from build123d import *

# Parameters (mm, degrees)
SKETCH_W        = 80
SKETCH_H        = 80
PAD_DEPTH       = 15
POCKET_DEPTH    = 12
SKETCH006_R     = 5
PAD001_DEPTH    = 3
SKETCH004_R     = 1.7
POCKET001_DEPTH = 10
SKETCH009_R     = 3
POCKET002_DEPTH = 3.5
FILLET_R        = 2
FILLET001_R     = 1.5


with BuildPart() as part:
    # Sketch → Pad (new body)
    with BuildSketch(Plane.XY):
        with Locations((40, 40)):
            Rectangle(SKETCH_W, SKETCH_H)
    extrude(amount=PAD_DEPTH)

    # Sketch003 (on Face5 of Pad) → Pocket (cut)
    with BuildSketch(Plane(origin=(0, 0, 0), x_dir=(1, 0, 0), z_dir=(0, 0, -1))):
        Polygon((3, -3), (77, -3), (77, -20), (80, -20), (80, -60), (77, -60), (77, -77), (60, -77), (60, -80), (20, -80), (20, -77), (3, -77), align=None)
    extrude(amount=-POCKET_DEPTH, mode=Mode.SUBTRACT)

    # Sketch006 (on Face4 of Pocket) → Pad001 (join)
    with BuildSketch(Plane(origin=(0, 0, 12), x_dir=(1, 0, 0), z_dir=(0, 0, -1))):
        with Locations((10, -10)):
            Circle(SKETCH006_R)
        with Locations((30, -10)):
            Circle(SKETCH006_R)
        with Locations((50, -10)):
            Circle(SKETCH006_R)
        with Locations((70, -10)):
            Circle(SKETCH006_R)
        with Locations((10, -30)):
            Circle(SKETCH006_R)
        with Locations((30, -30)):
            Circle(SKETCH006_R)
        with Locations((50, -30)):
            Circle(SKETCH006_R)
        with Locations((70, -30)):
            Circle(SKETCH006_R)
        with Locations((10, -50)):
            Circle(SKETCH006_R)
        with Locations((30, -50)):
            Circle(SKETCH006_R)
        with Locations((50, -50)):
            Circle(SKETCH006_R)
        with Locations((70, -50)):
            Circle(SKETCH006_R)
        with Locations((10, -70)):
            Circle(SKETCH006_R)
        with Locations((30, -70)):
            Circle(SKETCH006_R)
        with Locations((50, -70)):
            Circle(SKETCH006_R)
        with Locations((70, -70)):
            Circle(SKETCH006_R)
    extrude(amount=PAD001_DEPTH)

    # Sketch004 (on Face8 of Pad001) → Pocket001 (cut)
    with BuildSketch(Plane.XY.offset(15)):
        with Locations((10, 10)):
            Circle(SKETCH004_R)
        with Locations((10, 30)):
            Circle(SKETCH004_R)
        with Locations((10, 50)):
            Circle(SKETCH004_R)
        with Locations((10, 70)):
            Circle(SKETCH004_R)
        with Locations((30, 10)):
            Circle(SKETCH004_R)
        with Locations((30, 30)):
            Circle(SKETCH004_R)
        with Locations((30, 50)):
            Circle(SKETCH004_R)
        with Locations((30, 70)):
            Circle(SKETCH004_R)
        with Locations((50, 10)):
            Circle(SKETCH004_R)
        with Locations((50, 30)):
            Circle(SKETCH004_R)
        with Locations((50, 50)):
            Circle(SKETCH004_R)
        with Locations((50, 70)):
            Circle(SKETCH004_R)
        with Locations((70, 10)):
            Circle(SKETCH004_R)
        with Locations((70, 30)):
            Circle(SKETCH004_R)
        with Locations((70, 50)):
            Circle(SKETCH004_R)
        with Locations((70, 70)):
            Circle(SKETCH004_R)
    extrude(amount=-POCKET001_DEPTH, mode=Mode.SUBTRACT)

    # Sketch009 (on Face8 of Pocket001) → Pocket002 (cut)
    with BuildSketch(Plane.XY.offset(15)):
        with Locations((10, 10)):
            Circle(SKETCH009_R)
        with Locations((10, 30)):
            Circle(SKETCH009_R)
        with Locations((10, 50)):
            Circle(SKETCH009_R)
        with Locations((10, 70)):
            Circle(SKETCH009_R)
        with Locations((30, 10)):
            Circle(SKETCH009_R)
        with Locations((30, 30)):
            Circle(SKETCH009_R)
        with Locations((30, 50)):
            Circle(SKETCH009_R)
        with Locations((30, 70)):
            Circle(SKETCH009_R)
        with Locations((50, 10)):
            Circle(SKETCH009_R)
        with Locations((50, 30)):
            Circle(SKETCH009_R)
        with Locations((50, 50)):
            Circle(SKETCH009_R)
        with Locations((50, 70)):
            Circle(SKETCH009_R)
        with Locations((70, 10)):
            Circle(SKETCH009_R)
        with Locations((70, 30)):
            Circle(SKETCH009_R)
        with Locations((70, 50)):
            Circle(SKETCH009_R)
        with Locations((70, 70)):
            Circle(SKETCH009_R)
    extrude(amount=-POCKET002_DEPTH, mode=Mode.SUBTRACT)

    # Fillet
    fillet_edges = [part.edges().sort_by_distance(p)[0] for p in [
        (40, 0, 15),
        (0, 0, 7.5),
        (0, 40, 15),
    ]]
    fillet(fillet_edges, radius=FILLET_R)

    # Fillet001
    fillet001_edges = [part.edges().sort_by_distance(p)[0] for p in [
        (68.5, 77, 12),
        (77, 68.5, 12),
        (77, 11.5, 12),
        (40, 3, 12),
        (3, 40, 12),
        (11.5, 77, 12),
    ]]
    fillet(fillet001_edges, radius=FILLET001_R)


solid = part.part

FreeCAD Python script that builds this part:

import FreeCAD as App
import Part
import Sketcher
Q = App.Units.Quantity


def edges_at(feature, points):
    """Names of the edges that pass closest to the given points."""
    edges = feature.Shape.Edges
    near = lambda p: min(range(len(edges)), key=lambda i: edges[i].distToShape(Part.Vertex(*p))[0])
    return sorted({f"Edge{near(p) + 1}" for p in points})

doc = App.newDocument("Part")
body = doc.addObject("PartDesign::Body", "Body")

sketch1 = doc.addObject("Sketcher::SketchObject", "Sketch")
body.addObject(sketch1)
sketch1.AttachmentSupport = (doc.XY_Plane, [""])
sketch1.MapMode = "FlatFace"
sketch1.addGeometry(Part.LineSegment(App.Vector(0, 80, 0), App.Vector(0, 0, 0)), False)
sketch1.addGeometry(Part.LineSegment(App.Vector(0, 0, 0), App.Vector(80, 0, 0)), False)
sketch1.addGeometry(Part.LineSegment(App.Vector(80, 0, 0), App.Vector(80, 80, 0)), False)
sketch1.addGeometry(Part.LineSegment(App.Vector(80, 80, 0), App.Vector(0, 80, 0)), False)
sketch1.addConstraint(Sketcher.Constraint("Coincident", 0, 2, 1, 1))
sketch1.addConstraint(Sketcher.Constraint("Coincident", 1, 2, 2, 1))
sketch1.addConstraint(Sketcher.Constraint("Coincident", 2, 2, 3, 1))
sketch1.addConstraint(Sketcher.Constraint("Coincident", 3, 2, 0, 1))
sketch1.addConstraint(Sketcher.Constraint("Vertical", 0))
sketch1.addConstraint(Sketcher.Constraint("Horizontal", 1))
sketch1.addConstraint(Sketcher.Constraint("Vertical", 2))
sketch1.addConstraint(Sketcher.Constraint("Horizontal", 3))
sketch1.addConstraint(Sketcher.Constraint("Coincident", 0, 2, -1, 1))
sketch1.addConstraint(Sketcher.Constraint("Equal", 3, 0))
sketch1.addConstraint(Sketcher.Constraint("DistanceX", 1, 1, 1, 2, Q("80 mm")))
pad1 = doc.addObject("PartDesign::Pad", "Pad")
body.addObject(pad1)
pad1.Profile = sketch1
pad1.Length = 15

sketch2 = doc.addObject("Sketcher::SketchObject", "Sketch001")
body.addObject(sketch2)
sketch2.AttachmentSupport = (doc.XY_Plane, [""])
sketch2.MapMode = "FlatFace"
sketch2.addGeometry(Part.LineSegment(App.Vector(77, 3, 0), App.Vector(3, 3, 0)), False)
sketch2.addGeometry(Part.LineSegment(App.Vector(3, 3, 0), App.Vector(3, 77, 0)), False)
sketch2.addGeometry(Part.LineSegment(App.Vector(3, 77, 0), App.Vector(20, 77, 0)), False)
sketch2.addGeometry(Part.LineSegment(App.Vector(20, 77, 0), App.Vector(20, 80, 0)), False)
sketch2.addGeometry(Part.LineSegment(App.Vector(20, 80, 0), App.Vector(60, 80, 0)), False)
sketch2.addGeometry(Part.LineSegment(App.Vector(60, 80, 0), App.Vector(60, 77, 0)), False)
sketch2.addGeometry(Part.LineSegment(App.Vector(60, 77, 0), App.Vector(77, 77, 0)), False)
sketch2.addGeometry(Part.LineSegment(App.Vector(77, 77, 0), App.Vector(77, 60, 0)), False)
sketch2.addGeometry(Part.LineSegment(App.Vector(77, 60, 0), App.Vector(80, 60, 0)), False)
sketch2.addGeometry(Part.LineSegment(App.Vector(80, 60, 0), App.Vector(80, 20, 0)), False)
sketch2.addGeometry(Part.LineSegment(App.Vector(80, 20, 0), App.Vector(77, 20, 0)), False)
sketch2.addGeometry(Part.LineSegment(App.Vector(77, 20, 0), App.Vector(77, 3, 0)), False)
sketch2.addConstraint(Sketcher.Constraint("Coincident", 0, 2, 1, 1))
sketch2.addConstraint(Sketcher.Constraint("Coincident", 1, 2, 2, 1))
sketch2.addConstraint(Sketcher.Constraint("Coincident", 2, 2, 3, 1))
sketch2.addConstraint(Sketcher.Constraint("Coincident", 3, 2, 4, 1))
sketch2.addConstraint(Sketcher.Constraint("Coincident", 4, 2, 5, 1))
sketch2.addConstraint(Sketcher.Constraint("Coincident", 5, 2, 6, 1))
sketch2.addConstraint(Sketcher.Constraint("Coincident", 6, 2, 7, 1))
sketch2.addConstraint(Sketcher.Constraint("Coincident", 7, 2, 8, 1))
sketch2.addConstraint(Sketcher.Constraint("Coincident", 8, 2, 9, 1))
sketch2.addConstraint(Sketcher.Constraint("Coincident", 9, 2, 10, 1))
sketch2.addConstraint(Sketcher.Constraint("Coincident", 10, 2, 11, 1))
sketch2.addConstraint(Sketcher.Constraint("Coincident", 11, 2, 0, 1))
sketch2.addConstraint(Sketcher.Constraint("Horizontal", 0))
sketch2.addConstraint(Sketcher.Constraint("Vertical", 1))
sketch2.addConstraint(Sketcher.Constraint("Horizontal", 2))
sketch2.addConstraint(Sketcher.Constraint("Vertical", 3))
sketch2.addConstraint(Sketcher.Constraint("Horizontal", 4))
sketch2.addConstraint(Sketcher.Constraint("Vertical", 5))
sketch2.addConstraint(Sketcher.Constraint("Horizontal", 6))
sketch2.addConstraint(Sketcher.Constraint("Vertical", 7))
sketch2.addConstraint(Sketcher.Constraint("Horizontal", 8))
sketch2.addConstraint(Sketcher.Constraint("Vertical", 9))
sketch2.addConstraint(Sketcher.Constraint("Horizontal", 10))
sketch2.addConstraint(Sketcher.Constraint("Vertical", 11))
sketch2.addConstraint(Sketcher.Constraint("Horizontal", 2, 2, 5, 2))
sketch2.addConstraint(Sketcher.Constraint("Vertical", 7, 2, 10, 2))
sketch2.addConstraint(Sketcher.Constraint("Equal", 2, 6))
sketch2.addConstraint(Sketcher.Constraint("Equal", 0, 1))
sketch2.addConstraint(Sketcher.Constraint("Equal", 10, 3))
sketch2.addConstraint(Sketcher.Constraint("Equal", 6, 7))
sketch2.addConstraint(Sketcher.Constraint("Equal", 4, 9))
sketch2.addConstraint(Sketcher.Constraint("DistanceX", 0, 2, 0, 1, Q("74 mm")))
sketch2.addConstraint(Sketcher.Constraint("DistanceX", 2, 1, 2, 2, Q("17 mm")))
sketch2.addConstraint(Sketcher.Constraint("DistanceX", 8, 1, 8, 2, Q("3 mm")))
sketch2.addConstraint(Sketcher.Constraint("DistanceX", -1, 1, 0, 2, Q("3 mm")))
sketch2.addConstraint(Sketcher.Constraint("DistanceY", -1, 1, 0, 2, Q("3 mm")))
pocket1 = doc.addObject("PartDesign::Pocket", "Pocket")
body.addObject(pocket1)
pocket1.Profile = sketch2
pocket1.Length = 12
pocket1.Reversed = True

sketch3 = doc.addObject("Sketcher::SketchObject", "Sketch002")
body.addObject(sketch3)
sketch3.AttachmentSupport = (doc.XY_Plane, [""])
sketch3.MapMode = "FlatFace"
sketch3.AttachmentOffset = App.Placement(App.Vector(0, 0, 12), App.Rotation())
sketch3.addGeometry(Part.Circle(App.Vector(10, 10, 0), App.Vector(0, 0, 1), 5), False)
sketch3.addGeometry(Part.Circle(App.Vector(30, 10, 0), App.Vector(0, 0, 1), 5), False)
sketch3.addGeometry(Part.Circle(App.Vector(50, 10, 0), App.Vector(0, 0, 1), 5), False)
sketch3.addGeometry(Part.Circle(App.Vector(70, 10, 0), App.Vector(0, 0, 1), 5), False)
sketch3.addGeometry(Part.Circle(App.Vector(10, 30, 0), App.Vector(0, 0, 1), 5), False)
sketch3.addGeometry(Part.Circle(App.Vector(30, 30, 0), App.Vector(0, 0, 1), 5), False)
sketch3.addGeometry(Part.Circle(App.Vector(50, 30, 0), App.Vector(0, 0, 1), 5), False)
sketch3.addGeometry(Part.Circle(App.Vector(70, 30, 0), App.Vector(0, 0, 1), 5), False)
sketch3.addGeometry(Part.Circle(App.Vector(10, 50, 0), App.Vector(0, 0, 1), 5), False)
sketch3.addGeometry(Part.Circle(App.Vector(30, 50, 0), App.Vector(0, 0, 1), 5), False)
sketch3.addGeometry(Part.Circle(App.Vector(50, 50, 0), App.Vector(0, 0, 1), 5), False)
sketch3.addGeometry(Part.Circle(App.Vector(70, 50, 0), App.Vector(0, 0, 1), 5), False)
sketch3.addGeometry(Part.Circle(App.Vector(10, 70, 0), App.Vector(0, 0, 1), 5), False)
sketch3.addGeometry(Part.Circle(App.Vector(30, 70, 0), App.Vector(0, 0, 1), 5), False)
sketch3.addGeometry(Part.Circle(App.Vector(50, 70, 0), App.Vector(0, 0, 1), 5), False)
sketch3.addGeometry(Part.Circle(App.Vector(70, 70, 0), App.Vector(0, 0, 1), 5), False)
sketch3.addConstraint(Sketcher.Constraint("Equal", 0, 1))
sketch3.addConstraint(Sketcher.Constraint("Equal", 1, 2))
sketch3.addConstraint(Sketcher.Constraint("Equal", 2, 3))
sketch3.addConstraint(Sketcher.Constraint("Equal", 3, 4))
sketch3.addConstraint(Sketcher.Constraint("Equal", 4, 5))
sketch3.addConstraint(Sketcher.Constraint("Equal", 5, 6))
sketch3.addConstraint(Sketcher.Constraint("Equal", 6, 7))
sketch3.addConstraint(Sketcher.Constraint("Equal", 7, 8))
sketch3.addConstraint(Sketcher.Constraint("Equal", 8, 9))
sketch3.addConstraint(Sketcher.Constraint("Equal", 9, 10))
sketch3.addConstraint(Sketcher.Constraint("Equal", 10, 11))
sketch3.addConstraint(Sketcher.Constraint("Equal", 11, 12))
sketch3.addConstraint(Sketcher.Constraint("Equal", 12, 13))
sketch3.addConstraint(Sketcher.Constraint("Equal", 13, 14))
sketch3.addConstraint(Sketcher.Constraint("Equal", 14, 15))
sketch3.addConstraint(Sketcher.Constraint("Horizontal", 0, 3, 1, 3))
sketch3.addConstraint(Sketcher.Constraint("Horizontal", 1, 3, 2, 3))
sketch3.addConstraint(Sketcher.Constraint("Horizontal", 2, 3, 3, 3))
sketch3.addConstraint(Sketcher.Constraint("Horizontal", 4, 3, 5, 3))
sketch3.addConstraint(Sketcher.Constraint("Horizontal", 5, 3, 6, 3))
sketch3.addConstraint(Sketcher.Constraint("Horizontal", 6, 3, 7, 3))
sketch3.addConstraint(Sketcher.Constraint("Horizontal", 8, 3, 9, 3))
sketch3.addConstraint(Sketcher.Constraint("Horizontal", 9, 3, 10, 3))
sketch3.addConstraint(Sketcher.Constraint("Horizontal", 10, 3, 11, 3))
sketch3.addConstraint(Sketcher.Constraint("Horizontal", 12, 3, 13, 3))
sketch3.addConstraint(Sketcher.Constraint("Horizontal", 13, 3, 14, 3))
sketch3.addConstraint(Sketcher.Constraint("Horizontal", 14, 3, 15, 3))
sketch3.addConstraint(Sketcher.Constraint("Vertical", 0, 3, 4, 3))
sketch3.addConstraint(Sketcher.Constraint("Vertical", 1, 3, 5, 3))
sketch3.addConstraint(Sketcher.Constraint("Vertical", 2, 3, 6, 3))
sketch3.addConstraint(Sketcher.Constraint("Vertical", 3, 3, 7, 3))
sketch3.addConstraint(Sketcher.Constraint("Vertical", 4, 3, 8, 3))
sketch3.addConstraint(Sketcher.Constraint("Vertical", 5, 3, 9, 3))
sketch3.addConstraint(Sketcher.Constraint("Vertical", 6, 3, 10, 3))
sketch3.addConstraint(Sketcher.Constraint("Vertical", 7, 3, 11, 3))
sketch3.addConstraint(Sketcher.Constraint("Vertical", 8, 3, 12, 3))
sketch3.addConstraint(Sketcher.Constraint("Vertical", 9, 3, 13, 3))
sketch3.addConstraint(Sketcher.Constraint("Vertical", 10, 3, 14, 3))
sketch3.addConstraint(Sketcher.Constraint("Vertical", 11, 3, 15, 3))
sketch3.addConstraint(Sketcher.Constraint("Diameter", 0, Q("10 mm")))
sketch3.addConstraint(Sketcher.Constraint("DistanceX", -1, 1, 0, 3, Q("10 mm")))
sketch3.addConstraint(Sketcher.Constraint("DistanceY", -1, 1, 0, 3, Q("10 mm")))
sketch3.addConstraint(Sketcher.Constraint("DistanceX", -1, 1, 1, 3, Q("30 mm")))
sketch3.addConstraint(Sketcher.Constraint("DistanceX", -1, 1, 2, 3, Q("50 mm")))
sketch3.addConstraint(Sketcher.Constraint("DistanceX", -1, 1, 3, 3, Q("70 mm")))
sketch3.addConstraint(Sketcher.Constraint("DistanceY", -1, 1, 4, 3, Q("30 mm")))
sketch3.addConstraint(Sketcher.Constraint("DistanceY", -1, 1, 8, 3, Q("50 mm")))
sketch3.addConstraint(Sketcher.Constraint("DistanceY", -1, 1, 12, 3, Q("70 mm")))
pad2 = doc.addObject("PartDesign::Pad", "Pad001")
body.addObject(pad2)
pad2.Profile = sketch3
pad2.Length = 3
pad2.Reversed = True

sketch4 = doc.addObject("Sketcher::SketchObject", "Sketch003")
body.addObject(sketch4)
sketch4.AttachmentSupport = (doc.XY_Plane, [""])
sketch4.MapMode = "FlatFace"
sketch4.AttachmentOffset = App.Placement(App.Vector(0, 0, 15), App.Rotation())
sketch4.addGeometry(Part.Circle(App.Vector(10, 10, 0), App.Vector(0, 0, 1), 1.7), False)
sketch4.addGeometry(Part.Circle(App.Vector(10, 30, 0), App.Vector(0, 0, 1), 1.7), False)
sketch4.addGeometry(Part.Circle(App.Vector(10, 50, 0), App.Vector(0, 0, 1), 1.7), False)
sketch4.addGeometry(Part.Circle(App.Vector(10, 70, 0), App.Vector(0, 0, 1), 1.7), False)
sketch4.addGeometry(Part.Circle(App.Vector(30, 10, 0), App.Vector(0, 0, 1), 1.7), False)
sketch4.addGeometry(Part.Circle(App.Vector(30, 30, 0), App.Vector(0, 0, 1), 1.7), False)
sketch4.addGeometry(Part.Circle(App.Vector(30, 50, 0), App.Vector(0, 0, 1), 1.7), False)
sketch4.addGeometry(Part.Circle(App.Vector(30, 70, 0), App.Vector(0, 0, 1), 1.7), False)
sketch4.addGeometry(Part.Circle(App.Vector(50, 10, 0), App.Vector(0, 0, 1), 1.7), False)
sketch4.addGeometry(Part.Circle(App.Vector(50, 30, 0), App.Vector(0, 0, 1), 1.7), False)
sketch4.addGeometry(Part.Circle(App.Vector(50, 50, 0), App.Vector(0, 0, 1), 1.7), False)
sketch4.addGeometry(Part.Circle(App.Vector(50, 70, 0), App.Vector(0, 0, 1), 1.7), False)
sketch4.addGeometry(Part.Circle(App.Vector(70, 10, 0), App.Vector(0, 0, 1), 1.7), False)
sketch4.addGeometry(Part.Circle(App.Vector(70, 30, 0), App.Vector(0, 0, 1), 1.7), False)
sketch4.addGeometry(Part.Circle(App.Vector(70, 50, 0), App.Vector(0, 0, 1), 1.7), False)
sketch4.addGeometry(Part.Circle(App.Vector(70, 70, 0), App.Vector(0, 0, 1), 1.7), False)
sketch4.addConstraint(Sketcher.Constraint("Equal", 0, 1))
sketch4.addConstraint(Sketcher.Constraint("Equal", 1, 2))
sketch4.addConstraint(Sketcher.Constraint("Equal", 2, 3))
sketch4.addConstraint(Sketcher.Constraint("Equal", 3, 4))
sketch4.addConstraint(Sketcher.Constraint("Equal", 4, 5))
sketch4.addConstraint(Sketcher.Constraint("Equal", 5, 6))
sketch4.addConstraint(Sketcher.Constraint("Equal", 6, 7))
sketch4.addConstraint(Sketcher.Constraint("Equal", 7, 8))
sketch4.addConstraint(Sketcher.Constraint("Equal", 8, 9))
sketch4.addConstraint(Sketcher.Constraint("Equal", 9, 10))
sketch4.addConstraint(Sketcher.Constraint("Equal", 10, 11))
sketch4.addConstraint(Sketcher.Constraint("Equal", 11, 12))
sketch4.addConstraint(Sketcher.Constraint("Equal", 12, 13))
sketch4.addConstraint(Sketcher.Constraint("Equal", 13, 14))
sketch4.addConstraint(Sketcher.Constraint("Equal", 14, 15))
sketch4.addConstraint(Sketcher.Constraint("Horizontal", 0, 3, 4, 3))
sketch4.addConstraint(Sketcher.Constraint("Horizontal", 1, 3, 5, 3))
sketch4.addConstraint(Sketcher.Constraint("Horizontal", 2, 3, 6, 3))
sketch4.addConstraint(Sketcher.Constraint("Horizontal", 3, 3, 7, 3))
sketch4.addConstraint(Sketcher.Constraint("Horizontal", 4, 3, 8, 3))
sketch4.addConstraint(Sketcher.Constraint("Horizontal", 5, 3, 9, 3))
sketch4.addConstraint(Sketcher.Constraint("Horizontal", 6, 3, 10, 3))
sketch4.addConstraint(Sketcher.Constraint("Horizontal", 7, 3, 11, 3))
sketch4.addConstraint(Sketcher.Constraint("Horizontal", 8, 3, 12, 3))
sketch4.addConstraint(Sketcher.Constraint("Horizontal", 9, 3, 13, 3))
sketch4.addConstraint(Sketcher.Constraint("Horizontal", 10, 3, 14, 3))
sketch4.addConstraint(Sketcher.Constraint("Horizontal", 11, 3, 15, 3))
sketch4.addConstraint(Sketcher.Constraint("Vertical", 0, 3, 1, 3))
sketch4.addConstraint(Sketcher.Constraint("Vertical", 1, 3, 2, 3))
sketch4.addConstraint(Sketcher.Constraint("Vertical", 2, 3, 3, 3))
sketch4.addConstraint(Sketcher.Constraint("Vertical", 4, 3, 5, 3))
sketch4.addConstraint(Sketcher.Constraint("Vertical", 5, 3, 6, 3))
sketch4.addConstraint(Sketcher.Constraint("Vertical", 6, 3, 7, 3))
sketch4.addConstraint(Sketcher.Constraint("Vertical", 8, 3, 9, 3))
sketch4.addConstraint(Sketcher.Constraint("Vertical", 9, 3, 10, 3))
sketch4.addConstraint(Sketcher.Constraint("Vertical", 10, 3, 11, 3))
sketch4.addConstraint(Sketcher.Constraint("Vertical", 12, 3, 13, 3))
sketch4.addConstraint(Sketcher.Constraint("Vertical", 13, 3, 14, 3))
sketch4.addConstraint(Sketcher.Constraint("Vertical", 14, 3, 15, 3))
sketch4.addConstraint(Sketcher.Constraint("Diameter", 0, Q("3.4 mm")))
sketch4.addConstraint(Sketcher.Constraint("DistanceX", -1, 1, 0, 3, Q("10 mm")))
sketch4.addConstraint(Sketcher.Constraint("DistanceY", -1, 1, 0, 3, Q("10 mm")))
sketch4.addConstraint(Sketcher.Constraint("DistanceY", -1, 1, 1, 3, Q("30 mm")))
sketch4.addConstraint(Sketcher.Constraint("DistanceY", -1, 1, 2, 3, Q("50 mm")))
sketch4.addConstraint(Sketcher.Constraint("DistanceY", -1, 1, 3, 3, Q("70 mm")))
sketch4.addConstraint(Sketcher.Constraint("DistanceX", -1, 1, 4, 3, Q("30 mm")))
sketch4.addConstraint(Sketcher.Constraint("DistanceX", -1, 1, 8, 3, Q("50 mm")))
sketch4.addConstraint(Sketcher.Constraint("DistanceX", -1, 1, 12, 3, Q("70 mm")))
pocket2 = doc.addObject("PartDesign::Pocket", "Pocket001")
body.addObject(pocket2)
pocket2.Profile = sketch4
pocket2.Length = 10

sketch5 = doc.addObject("Sketcher::SketchObject", "Sketch004")
body.addObject(sketch5)
sketch5.AttachmentSupport = (doc.XY_Plane, [""])
sketch5.MapMode = "FlatFace"
sketch5.AttachmentOffset = App.Placement(App.Vector(0, 0, 15), App.Rotation())
sketch5.addGeometry(Part.Circle(App.Vector(10, 10, 0), App.Vector(0, 0, 1), 3), False)
sketch5.addGeometry(Part.Circle(App.Vector(10, 30, 0), App.Vector(0, 0, 1), 3), False)
sketch5.addGeometry(Part.Circle(App.Vector(10, 50, 0), App.Vector(0, 0, 1), 3), False)
sketch5.addGeometry(Part.Circle(App.Vector(10, 70, 0), App.Vector(0, 0, 1), 3), False)
sketch5.addGeometry(Part.Circle(App.Vector(30, 10, 0), App.Vector(0, 0, 1), 3), False)
sketch5.addGeometry(Part.Circle(App.Vector(30, 30, 0), App.Vector(0, 0, 1), 3), False)
sketch5.addGeometry(Part.Circle(App.Vector(30, 50, 0), App.Vector(0, 0, 1), 3), False)
sketch5.addGeometry(Part.Circle(App.Vector(30, 70, 0), App.Vector(0, 0, 1), 3), False)
sketch5.addGeometry(Part.Circle(App.Vector(50, 10, 0), App.Vector(0, 0, 1), 3), False)
sketch5.addGeometry(Part.Circle(App.Vector(50, 30, 0), App.Vector(0, 0, 1), 3), False)
sketch5.addGeometry(Part.Circle(App.Vector(50, 50, 0), App.Vector(0, 0, 1), 3), False)
sketch5.addGeometry(Part.Circle(App.Vector(50, 70, 0), App.Vector(0, 0, 1), 3), False)
sketch5.addGeometry(Part.Circle(App.Vector(70, 10, 0), App.Vector(0, 0, 1), 3), False)
sketch5.addGeometry(Part.Circle(App.Vector(70, 30, 0), App.Vector(0, 0, 1), 3), False)
sketch5.addGeometry(Part.Circle(App.Vector(70, 50, 0), App.Vector(0, 0, 1), 3), False)
sketch5.addGeometry(Part.Circle(App.Vector(70, 70, 0), App.Vector(0, 0, 1), 3), False)
sketch5.addConstraint(Sketcher.Constraint("Equal", 0, 1))
sketch5.addConstraint(Sketcher.Constraint("Equal", 1, 2))
sketch5.addConstraint(Sketcher.Constraint("Equal", 2, 3))
sketch5.addConstraint(Sketcher.Constraint("Equal", 3, 4))
sketch5.addConstraint(Sketcher.Constraint("Equal", 4, 5))
sketch5.addConstraint(Sketcher.Constraint("Equal", 5, 6))
sketch5.addConstraint(Sketcher.Constraint("Equal", 6, 7))
sketch5.addConstraint(Sketcher.Constraint("Equal", 7, 8))
sketch5.addConstraint(Sketcher.Constraint("Equal", 8, 9))
sketch5.addConstraint(Sketcher.Constraint("Equal", 9, 10))
sketch5.addConstraint(Sketcher.Constraint("Equal", 10, 11))
sketch5.addConstraint(Sketcher.Constraint("Equal", 11, 12))
sketch5.addConstraint(Sketcher.Constraint("Equal", 12, 13))
sketch5.addConstraint(Sketcher.Constraint("Equal", 13, 14))
sketch5.addConstraint(Sketcher.Constraint("Equal", 14, 15))
sketch5.addConstraint(Sketcher.Constraint("Horizontal", 0, 3, 4, 3))
sketch5.addConstraint(Sketcher.Constraint("Horizontal", 1, 3, 5, 3))
sketch5.addConstraint(Sketcher.Constraint("Horizontal", 2, 3, 6, 3))
sketch5.addConstraint(Sketcher.Constraint("Horizontal", 3, 3, 7, 3))
sketch5.addConstraint(Sketcher.Constraint("Horizontal", 4, 3, 8, 3))
sketch5.addConstraint(Sketcher.Constraint("Horizontal", 5, 3, 9, 3))
sketch5.addConstraint(Sketcher.Constraint("Horizontal", 6, 3, 10, 3))
sketch5.addConstraint(Sketcher.Constraint("Horizontal", 7, 3, 11, 3))
sketch5.addConstraint(Sketcher.Constraint("Horizontal", 8, 3, 12, 3))
sketch5.addConstraint(Sketcher.Constraint("Horizontal", 9, 3, 13, 3))
sketch5.addConstraint(Sketcher.Constraint("Horizontal", 10, 3, 14, 3))
sketch5.addConstraint(Sketcher.Constraint("Horizontal", 11, 3, 15, 3))
sketch5.addConstraint(Sketcher.Constraint("Vertical", 0, 3, 1, 3))
sketch5.addConstraint(Sketcher.Constraint("Vertical", 1, 3, 2, 3))
sketch5.addConstraint(Sketcher.Constraint("Vertical", 2, 3, 3, 3))
sketch5.addConstraint(Sketcher.Constraint("Vertical", 4, 3, 5, 3))
sketch5.addConstraint(Sketcher.Constraint("Vertical", 5, 3, 6, 3))
sketch5.addConstraint(Sketcher.Constraint("Vertical", 6, 3, 7, 3))
sketch5.addConstraint(Sketcher.Constraint("Vertical", 8, 3, 9, 3))
sketch5.addConstraint(Sketcher.Constraint("Vertical", 9, 3, 10, 3))
sketch5.addConstraint(Sketcher.Constraint("Vertical", 10, 3, 11, 3))
sketch5.addConstraint(Sketcher.Constraint("Vertical", 12, 3, 13, 3))
sketch5.addConstraint(Sketcher.Constraint("Vertical", 13, 3, 14, 3))
sketch5.addConstraint(Sketcher.Constraint("Vertical", 14, 3, 15, 3))
sketch5.addConstraint(Sketcher.Constraint("Diameter", 0, Q("6 mm")))
sketch5.addConstraint(Sketcher.Constraint("DistanceX", -1, 1, 0, 3, Q("10 mm")))
sketch5.addConstraint(Sketcher.Constraint("DistanceY", -1, 1, 0, 3, Q("10 mm")))
sketch5.addConstraint(Sketcher.Constraint("DistanceY", -1, 1, 1, 3, Q("30 mm")))
sketch5.addConstraint(Sketcher.Constraint("DistanceY", -1, 1, 2, 3, Q("50 mm")))
sketch5.addConstraint(Sketcher.Constraint("DistanceY", -1, 1, 3, 3, Q("70 mm")))
sketch5.addConstraint(Sketcher.Constraint("DistanceX", -1, 1, 4, 3, Q("30 mm")))
sketch5.addConstraint(Sketcher.Constraint("DistanceX", -1, 1, 8, 3, Q("50 mm")))
sketch5.addConstraint(Sketcher.Constraint("DistanceX", -1, 1, 12, 3, Q("70 mm")))
pocket3 = doc.addObject("PartDesign::Pocket", "Pocket002")
body.addObject(pocket3)
pocket3.Profile = sketch5
pocket3.Length = 3.5
doc.recompute()

fillet = doc.addObject("PartDesign::Fillet", "Fillet")
body.addObject(fillet)
fillet.Base = (pocket3, edges_at(pocket3, [(40, 0, 15), (0, 0, 7.5), (0, 40, 15)]))
fillet.Radius = 2
doc.recompute()

fillet2 = doc.addObject("PartDesign::Fillet", "Fillet001")
body.addObject(fillet2)
fillet2.Base = (fillet, edges_at(fillet, [
    (68.5, 77, 12),
    (77, 68.5, 12),
    (77, 11.5, 12),
    (40, 3, 12),
    (3, 40, 12),
    (11.5, 77, 12),
]))
fillet2.Radius = 1.5

doc.recompute()
